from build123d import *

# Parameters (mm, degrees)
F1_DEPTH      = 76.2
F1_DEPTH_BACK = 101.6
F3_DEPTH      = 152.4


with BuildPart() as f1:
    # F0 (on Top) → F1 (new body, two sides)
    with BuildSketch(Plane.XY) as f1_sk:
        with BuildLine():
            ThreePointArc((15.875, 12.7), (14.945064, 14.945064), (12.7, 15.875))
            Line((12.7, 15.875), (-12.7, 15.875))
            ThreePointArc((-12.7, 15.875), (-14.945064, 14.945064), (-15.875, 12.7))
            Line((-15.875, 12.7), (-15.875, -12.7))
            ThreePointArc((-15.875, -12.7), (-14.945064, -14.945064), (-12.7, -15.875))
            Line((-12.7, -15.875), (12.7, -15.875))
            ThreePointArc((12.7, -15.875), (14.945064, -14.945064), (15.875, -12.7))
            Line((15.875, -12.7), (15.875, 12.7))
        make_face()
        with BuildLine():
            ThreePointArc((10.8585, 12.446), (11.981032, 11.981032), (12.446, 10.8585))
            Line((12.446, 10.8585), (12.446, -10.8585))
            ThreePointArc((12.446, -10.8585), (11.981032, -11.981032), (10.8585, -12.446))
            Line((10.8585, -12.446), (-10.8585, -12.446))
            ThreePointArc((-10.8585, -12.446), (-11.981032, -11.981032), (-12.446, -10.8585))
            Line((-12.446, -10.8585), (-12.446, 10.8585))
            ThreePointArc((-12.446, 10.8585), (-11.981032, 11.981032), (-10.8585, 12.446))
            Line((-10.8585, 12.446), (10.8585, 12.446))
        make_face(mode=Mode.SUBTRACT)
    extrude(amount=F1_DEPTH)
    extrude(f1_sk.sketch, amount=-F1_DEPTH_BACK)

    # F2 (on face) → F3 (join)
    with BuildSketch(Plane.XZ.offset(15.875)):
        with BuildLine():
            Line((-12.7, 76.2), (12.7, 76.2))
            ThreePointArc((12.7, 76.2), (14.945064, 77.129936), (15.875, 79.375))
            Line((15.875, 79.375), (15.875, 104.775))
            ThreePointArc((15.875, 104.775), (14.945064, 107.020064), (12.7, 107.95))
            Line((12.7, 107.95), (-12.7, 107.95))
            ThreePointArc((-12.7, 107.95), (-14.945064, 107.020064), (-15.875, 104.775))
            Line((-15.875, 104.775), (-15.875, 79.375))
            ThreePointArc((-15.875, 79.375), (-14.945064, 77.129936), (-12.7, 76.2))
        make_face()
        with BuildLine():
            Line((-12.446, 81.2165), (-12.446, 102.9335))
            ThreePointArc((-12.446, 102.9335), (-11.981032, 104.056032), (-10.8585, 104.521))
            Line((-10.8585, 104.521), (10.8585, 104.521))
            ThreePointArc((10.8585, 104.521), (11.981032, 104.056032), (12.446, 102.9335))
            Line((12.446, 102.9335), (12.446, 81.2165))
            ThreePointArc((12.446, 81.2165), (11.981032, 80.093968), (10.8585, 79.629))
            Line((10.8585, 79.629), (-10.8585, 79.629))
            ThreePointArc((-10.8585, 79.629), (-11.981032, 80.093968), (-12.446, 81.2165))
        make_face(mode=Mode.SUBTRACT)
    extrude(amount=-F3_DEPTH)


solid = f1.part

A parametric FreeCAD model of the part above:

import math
import FreeCAD as App
import Part
import Sketcher
from FreeCAD import Vector
Q = App.Units.Quantity

doc = App.newDocument("Part")
params = doc.addObject("Spreadsheet::Sheet", "Params")
for row, (alias, value) in enumerate([
    ("sketch1_width", "1 in"),
    ("sketch1_radius", "0.125 in"),
    ("sketch1_radius2", "0.0625 in"),
    ("sketch1_width2", "0.855 in"),
    ("pad1_length", "3 in"),
    ("pad1_length2", "4 in"),
    ("sketch2_width", "1 in"),
    ("sketch2_radius", "0.125 in"),
    ("sketch2_radius2", "0.0625 in"),
    ("sketch2_width2", "0.855 in"),
    ("pad2_length", "6 in"),
], start=1):
    params.set(f"A{row}", alias)
    params.set(f"B{row}", "=" + value)
    params.setAlias(f"B{row}", alias)

body = doc.addObject("PartDesign::Body", "Body")

# Sketch on XY plane
sketch1 = doc.addObject("Sketcher::SketchObject", "Sketch")
body.addObject(sketch1)
sketch1.AttachmentSupport = (doc.XY_Plane, [""])
sketch1.MapMode = "FlatFace"
sketch1.addGeometry([
    Part.ArcOfCircle(Part.Circle(Vector(12.7, 12.7, 0), Vector(0, 0, 1), 3.175), math.radians(0.000002), math.radians(89.999998)),  # 0
    Part.LineSegment(Vector(12.7, 15.875, 0), Vector(-12.7, 15.875, 0)),  # 1
    Part.ArcOfCircle(Part.Circle(Vector(-12.7, 12.7, 0), Vector(0, 0, 1), 3.175), math.radians(90.000002), math.radians(179.999998)),  # 2
    Part.LineSegment(Vector(-15.875, 12.7, 0), Vector(-15.875, -12.7, 0)),  # 3
    Part.ArcOfCircle(Part.Circle(Vector(-12.7, -12.7, 0), Vector(0, 0, 1), 3.175), math.radians(-179.999998), math.radians(-90.000002)),  # 4
    Part.LineSegment(Vector(-12.7, -15.875, 0), Vector(12.7, -15.875, 0)),  # 5
    Part.ArcOfCircle(Part.Circle(Vector(12.7, -12.7, 0), Vector(0, 0, 1), 3.175), math.radians(-89.999998), math.radians(-0.000002)),  # 6
    Part.LineSegment(Vector(15.875, -12.7, 0), Vector(15.875, 12.7, 0)),  # 7
    Part.LineSegment(Vector(-10.8585, 12.446, 0), Vector(10.8585, 12.446, 0)),  # 8
    Part.ArcOfCircle(Part.Circle(Vector(10.8585, 10.8585, 0), Vector(0, 0, 1), 1.5875), math.radians(0.000002), math.radians(89.999998)),  # 9
    Part.LineSegment(Vector(12.446, 10.8585, 0), Vector(12.446, -10.8585, 0)),  # 10
    Part.ArcOfCircle(Part.Circle(Vector(10.8585, -10.8585, 0), Vector(0, 0, 1), 1.5875), math.radians(-89.999998), math.radians(-0.000002)),  # 11
    Part.LineSegment(Vector(10.8585, -12.446, 0), Vector(-10.8585, -12.446, 0)),  # 12
    Part.ArcOfCircle(Part.Circle(Vector(-10.8585, -10.8585, 0), Vector(0, 0, 1), 1.5875), math.radians(-179.999998), math.radians(-90.000002)),  # 13
    Part.LineSegment(Vector(-12.446, -10.8585, 0), Vector(-12.446, 10.8585, 0)),  # 14
    Part.ArcOfCircle(Part.Circle(Vector(-10.8585, 10.8585, 0), Vector(0, 0, 1), 1.5875), math.radians(90.000002), math.radians(179.999998)),  # 15
], False)
sketch1.addConstraint([
    Sketcher.Constraint("Tangent", 0, 2, 1, 1),
    Sketcher.Constraint("Tangent", 1, 2, 2, 1),
    Sketcher.Constraint("Tangent", 2, 2, 3, 1),
    Sketcher.Constraint("Tangent", 3, 2, 4, 1),
    Sketcher.Constraint("Tangent", 4, 2, 5, 1),
    Sketcher.Constraint("Tangent", 5, 2, 6, 1),
    Sketcher.Constraint("Tangent", 6, 2, 7, 1),
    Sketcher.Constraint("Tangent", 7, 2, 0, 1),
    Sketcher.Constraint("Tangent", 8, 2, 9, 2),
    Sketcher.Constraint("Tangent", 9, 1, 10, 1),
    Sketcher.Constraint("Tangent", 10, 2, 11, 2),
    Sketcher.Constraint("Tangent", 11, 1, 12, 1),
    Sketcher.Constraint("Tangent", 12, 2, 13, 2),
    Sketcher.Constraint("Tangent", 13, 1, 14, 1),
    Sketcher.Constraint("Tangent", 14, 2, 15, 2),
    Sketcher.Constraint("Tangent", 15, 1, 8, 1),
    Sketcher.Constraint("Horizontal", 1),
    Sketcher.Constraint("Vertical", 3),
    Sketcher.Constraint("Horizontal", 5),
    Sketcher.Constraint("Vertical", 7),
    Sketcher.Constraint("Horizontal", 8),
    Sketcher.Constraint("Vertical", 10),
    Sketcher.Constraint("Horizontal", 12),
    Sketcher.Constraint("Vertical", 14),
    Sketcher.Constraint("Equal", 0, 2),
    Sketcher.Constraint("Equal", 2, 4),
    Sketcher.Constraint("Equal", 4, 6),
    Sketcher.Constraint("Equal", 9, 11),
    Sketcher.Constraint("Equal", 11, 13),
    Sketcher.Constraint("Equal", 13, 15),
    Sketcher.Constraint("Symmetric", 0, 3, 4, 3, -1, 1),
    Sketcher.Constraint("Symmetric", 9, 3, 13, 3, -1, 1),
    Sketcher.Constraint("Equal", 5, 3),
    Sketcher.Constraint("Equal", 12, 10),
    Sketcher.Constraint("DistanceX", 1, 2, 1, 1, Q("1 in")),
    Sketcher.Constraint("Radius", 0, Q("0.125 in")),
    Sketcher.Constraint("Radius", 9, Q("0.0625 in")),
    Sketcher.Constraint("DistanceX", 8, 1, 8, 2, Q("0.855 in")),
])
sketch1.setExpression("Constraints[34]", "Params.sketch1_width")
sketch1.setExpression("Constraints[35]", "Params.sketch1_radius")
sketch1.setExpression("Constraints[36]", "Params.sketch1_radius2")
sketch1.setExpression("Constraints[37]", "Params.sketch1_width2")
pad1 = doc.addObject("PartDesign::Pad", "Pad")
body.addObject(pad1)
pad1.Profile = sketch1
pad1.Type = "TwoLengths"
pad1.setExpression("Length", "Params.pad1_length")
pad1.setExpression("Length2", "Params.pad1_length2")

# Sketch on XZ plane
sketch2 = doc.addObject("Sketcher::SketchObject", "Sketch001")
body.addObject(sketch2)
sketch2.AttachmentSupport = (doc.XZ_Plane, [""])
sketch2.MapMode = "FlatFace"
sketch2.AttachmentOffset = App.Placement(Vector(0, 0, 0.625 * 25.4), App.Rotation())
sketch2.addGeometry([
    Part.LineSegment(Vector(-12.7, 76.2, 0), Vector(12.7, 76.2, 0)),  # 0
    Part.ArcOfCircle(Part.Circle(Vector(12.7, 79.375, 0), Vector(0, 0, 1), 3.175), math.radians(-89.999998), math.radians(-0.000002)),  # 1
    Part.LineSegment(Vector(15.875, 79.375, 0), Vector(15.875, 104.775, 0)),  # 2
    Part.ArcOfCircle(Part.Circle(Vector(12.7, 104.775, 0), Vector(0, 0, 1), 3.175), math.radians(0.000002), math.radians(89.999998)),  # 3
    Part.LineSegment(Vector(12.7, 107.95, 0), Vector(-12.7, 107.95, 0)),  # 4
    Part.ArcOfCircle(Part.Circle(Vector(-12.7, 104.775, 0), Vector(0, 0, 1), 3.175), math.radians(90.000002), math.radians(179.999998)),  # 5
    Part.LineSegment(Vector(-15.875, 104.775, 0), Vector(-15.875, 79.375, 0)),  # 6
    Part.ArcOfCircle(Part.Circle(Vector(-12.7, 79.375, 0), Vector(0, 0, 1), 3.175), math.radians(-179.999998), math.radians(-90.000002)),  # 7
    Part.ArcOfCircle(Part.Circle(Vector(-10.8585, 81.2165, 0), Vector(0, 0, 1), 1.5875), math.radians(-179.999998), math.radians(-90.000002)),  # 8
    Part.LineSegment(Vector(-12.446, 81.2165, 0), Vector(-12.446, 102.9335, 0)),  # 9
    Part.ArcOfCircle(Part.Circle(Vector(-10.8585, 102.9335, 0), Vector(0, 0, 1), 1.5875), math.radians(90.000002), math.radians(179.999998)),  # 10
    Part.LineSegment(Vector(-10.8585, 104.521, 0), Vector(10.8585, 104.521, 0)),  # 11
    Part.ArcOfCircle(Part.Circle(Vector(10.8585, 102.9335, 0), Vector(0, 0, 1), 1.5875), math.radians(0.000002), math.radians(89.999998)),  # 12
    Part.LineSegment(Vector(12.446, 102.9335, 0), Vector(12.446, 81.2165, 0)),  # 13
    Part.ArcOfCircle(Part.Circle(Vector(10.8585, 81.2165, 0), Vector(0, 0, 1), 1.5875), math.radians(-89.999998), math.radians(-0.000002)),  # 14
    Part.LineSegment(Vector(10.8585, 79.629, 0), Vector(-10.8585, 79.629, 0)),  # 15
], False)
sketch2.addConstraint([
    Sketcher.Constraint("Tangent", 0, 2, 1, 1),
    Sketcher.Constraint("Tangent", 1, 2, 2, 1),
    Sketcher.Constraint("Tangent", 2, 2, 3, 1),
    Sketcher.Constraint("Tangent", 3, 2, 4, 1),
    Sketcher.Constraint("Tangent", 4, 2, 5, 1),
    Sketcher.Constraint("Tangent", 5, 2, 6, 1),
    Sketcher.Constraint("Tangent", 6, 2, 7, 1),
    Sketcher.Constraint("Tangent", 7, 2, 0, 1),
    Sketcher.Constraint("Tangent", 8, 1, 9, 1),
    Sketcher.Constraint("Tangent", 9, 2, 10, 2),
    Sketcher.Constraint("Tangent", 10, 1, 11, 1),
    Sketcher.Constraint("Tangent", 11, 2, 12, 2),
    Sketcher.Constraint("Tangent", 12, 1, 13, 1),
    Sketcher.Constraint("Tangent", 13, 2, 14, 2),
    Sketcher.Constraint("Tangent", 14, 1, 15, 1),
    Sketcher.Constraint("Tangent", 15, 2, 8, 2),
    Sketcher.Constraint("Horizontal", 0),
    Sketcher.Constraint("Vertical", 2),
    Sketcher.Constraint("Horizontal", 4),
    Sketcher.Constraint("Vertical", 6),
    Sketcher.Constraint("Vertical", 9),
    Sketcher.Constraint("Horizontal", 11),
    Sketcher.Constraint("Vertical", 13),
    Sketcher.Constraint("Horizontal", 15),
    Sketcher.Constraint("Equal", 1, 3),
    Sketcher.Constraint("Equal", 3, 5),
    Sketcher.Constraint("Equal", 5, 7),
    Sketcher.Constraint("Equal", 8, 10),
    Sketcher.Constraint("Equal", 10, 12),
    Sketcher.Constraint("Equal", 12, 14),
    Sketcher.Constraint("Equal", 4, 2),
    Sketcher.Constraint("Equal", 15, 9),
    Sketcher.Constraint("DistanceX", 0, 1, 0, 2, Q("1 in")),
    Sketcher.Constraint("DistanceY", -1, 1, 0, 2, Q("3 in")),
    Sketcher.Constraint("Radius", 1, Q("0.125 in")),
    Sketcher.Constraint("Radius", 8, Q("0.0625 in")),
    Sketcher.Constraint("DistanceX", -1, 1, 1, 3, Q("0.5 in")),
    Sketcher.Constraint("DistanceX", 11, 1, 11, 2, Q("0.855 in")),
    Sketcher.Constraint("DistanceX", 8, 1, -1, 1, Q("0.49 in")),
    Sketcher.Constraint("DistanceY", 10, 1, 5, 3, Q("0.01 in")),
])
sketch2.setExpression("Constraints[32]", "Params.sketch2_width")
sketch2.setExpression("Constraints[34]", "Params.sketch2_radius")
sketch2.setExpression("Constraints[35]", "Params.sketch2_radius2")
sketch2.setExpression("Constraints[37]", "Params.sketch2_width2")
pad2 = doc.addObject("PartDesign::Pad", "Pad001")
body.addObject(pad2)
pad2.Profile = sketch2
pad2.setExpression("Length", "Params.pad2_length")
pad2.Reversed = True

doc.recompute()
